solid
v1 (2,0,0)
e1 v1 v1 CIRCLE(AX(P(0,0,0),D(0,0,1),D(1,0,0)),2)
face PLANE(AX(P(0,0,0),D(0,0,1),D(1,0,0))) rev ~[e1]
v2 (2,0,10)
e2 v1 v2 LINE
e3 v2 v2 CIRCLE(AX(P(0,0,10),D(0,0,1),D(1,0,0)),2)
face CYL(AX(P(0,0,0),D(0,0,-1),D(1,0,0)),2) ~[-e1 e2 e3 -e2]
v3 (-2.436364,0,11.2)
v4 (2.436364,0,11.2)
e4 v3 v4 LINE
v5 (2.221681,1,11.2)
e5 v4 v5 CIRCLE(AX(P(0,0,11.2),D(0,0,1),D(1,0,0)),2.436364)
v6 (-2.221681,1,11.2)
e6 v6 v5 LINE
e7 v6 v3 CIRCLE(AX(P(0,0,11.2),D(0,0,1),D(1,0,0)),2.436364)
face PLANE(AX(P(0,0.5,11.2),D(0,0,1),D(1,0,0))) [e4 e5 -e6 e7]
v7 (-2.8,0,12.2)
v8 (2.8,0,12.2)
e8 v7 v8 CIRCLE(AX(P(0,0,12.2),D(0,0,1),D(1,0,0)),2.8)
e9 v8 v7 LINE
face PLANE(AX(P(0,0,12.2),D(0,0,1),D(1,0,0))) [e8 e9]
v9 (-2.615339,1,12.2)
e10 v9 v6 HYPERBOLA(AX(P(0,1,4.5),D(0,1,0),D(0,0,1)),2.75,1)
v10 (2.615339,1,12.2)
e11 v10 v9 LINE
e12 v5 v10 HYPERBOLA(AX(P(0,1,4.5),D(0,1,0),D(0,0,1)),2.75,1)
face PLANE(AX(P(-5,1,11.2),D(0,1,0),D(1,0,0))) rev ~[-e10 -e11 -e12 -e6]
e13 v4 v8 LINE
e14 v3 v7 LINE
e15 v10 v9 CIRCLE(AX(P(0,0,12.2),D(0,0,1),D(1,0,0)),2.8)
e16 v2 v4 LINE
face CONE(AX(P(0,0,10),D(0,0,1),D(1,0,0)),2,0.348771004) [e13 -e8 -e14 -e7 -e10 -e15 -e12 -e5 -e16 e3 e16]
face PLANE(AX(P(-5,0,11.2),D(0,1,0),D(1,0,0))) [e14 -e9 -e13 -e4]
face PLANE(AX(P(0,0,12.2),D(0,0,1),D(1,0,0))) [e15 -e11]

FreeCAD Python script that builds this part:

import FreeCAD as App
import Part
import Sketcher

V = App.Vector


def add_polygon(sketch, points):
    """Adds a closed chain of lines whose ends are joined by coincident constraints."""
    first, n = sketch.GeometryCount, len(points)
    for a, b in zip(points, points[1:] + points[:1]):
        sketch.addGeometry(Part.LineSegment(App.Vector(*a, 0), App.Vector(*b, 0)), False)
    for i in range(n):
        sketch.addConstraint(Sketcher.Constraint("Coincident", first + i, 2, first + (i + 1) % n, 1))

doc = App.newDocument("Part")
params = doc.addObject("Spreadsheet::Sheet", "Params")
for row, (alias, value) in enumerate([
    ("sketch1_width", "10 mm"),
    ("sketch1_height", "1 mm"),
    ("pad1_length", "2 mm"),
    ("sketch2_width", "2 mm"),
    ("sketch2_width2", "2.8 mm"),
    ("sketch2_height", "2.2 mm"),
    ("revolution_angle", "360 deg"),
    ("sketch3_diameter", "4 mm"),
    ("pad2_length", "10 mm"),
], start=1):
    params.set(f"A{row}", alias)
    params.set(f"B{row}", "=" + value)
    params.setAlias(f"B{row}", alias)

body = doc.addObject("PartDesign::Body", "Body")

sketch1 = body.newObject("Sketcher::SketchObject", "Sketch")
sketch1.AttachmentSupport = (doc.getObject("XY_Plane"), [""])
sketch1.MapMode = "FlatFace"
sketch1.AttachmentOffset = App.Placement(V(0, 0, 11.2), App.Rotation())
add_polygon(sketch1, [(-5, 1), (-5, 0), (5, 0), (5, 1)])
sketch1.addConstraint([
    Sketcher.Constraint("Vertical", 0),
    Sketcher.Constraint("Horizontal", 1),
    Sketcher.Constraint("Vertical", 2),
    Sketcher.Constraint("Horizontal", 3),
    Sketcher.Constraint("Symmetric", 0, 2, 1, 2, -1, 1),
    Sketcher.Constraint("DistanceX", 1, 1, 1, 2, 10.0),
    Sketcher.Constraint("DistanceY", 0, 2, 0, 1, 1.0),
])
sketch1.setExpression("Constraints[9]", "Params.sketch1_width")
sketch1.setExpression("Constraints[10]", "Params.sketch1_height")
pad1 = body.newObject("PartDesign::Pad", "Pad")
pad1.Profile = sketch1
pad1.setExpression("Length", "Params.pad1_length")
body2 = doc.addObject("PartDesign::Body", "Body001")

sketch2 = body2.newObject("Sketcher::SketchObject", "Sketch001")
sketch2.AttachmentSupport = (doc.getObject("XZ_Plane001"), [""])
sketch2.MapMode = "FlatFace"
add_polygon(sketch2, [(0, 10), (2, 10), (2.8, 12.2), (0, 12.2)])
sketch2.addConstraint([
    Sketcher.Constraint("Horizontal", 0),
    Sketcher.Constraint("Horizontal", 2),
    Sketcher.Constraint("Vertical", 3),
    Sketcher.Constraint("PointOnObject", 2, 2, -2),
    Sketcher.Constraint("DistanceX", 0, 1, 0, 2, 2.0),
    Sketcher.Constraint("DistanceX", 2, 2, 2, 1, 2.8),
    Sketcher.Constraint("DistanceY", 3, 2, 3, 1, 2.2),
    Sketcher.Constraint("DistanceY", -1, 1, 0, 2, 10.0),
])
sketch2.setExpression("Constraints[8]", "Params.sketch2_width")
sketch2.setExpression("Constraints[9]", "Params.sketch2_width2")
sketch2.setExpression("Constraints[10]", "Params.sketch2_height")
revolution = body2.newObject("PartDesign::Revolution", "Revolution")
revolution.Profile = sketch2
revolution.ReferenceAxis = (sketch2, ["V_Axis"])
revolution.setExpression("Angle", "Params.revolution_angle")
doc.recompute()

boolean = body2.newObject("PartDesign::Boolean", "Boolean")
boolean.Type = "Cut"
boolean.addObjects([body])
body3 = doc.addObject("PartDesign::Body", "Body002")

sketch3 = body3.newObject("Sketcher::SketchObject", "Sketch002")
sketch3.AttachmentSupport = (doc.getObject("XY_Plane002"), [""])
sketch3.MapMode = "FlatFace"
sketch3.addGeometry(Part.Circle(V(0, 0, 0), V(0, 0, 1), 2), False)
sketch3.addConstraint([
    Sketcher.Constraint("Coincident", 0, 3, -1, 1),
    Sketcher.Constraint("Diameter", 0, 4.0),
])
sketch3.setExpression("Constraints[1]", "Params.sketch3_diameter")
pad2 = body3.newObject("PartDesign::Pad", "Pad001")
pad2.Profile = sketch3
pad2.setExpression("Length", "Params.pad2_length")
doc.recompute()

boolean2 = body3.newObject("PartDesign::Boolean", "Boolean001")
boolean2.Type = "Fuse"
boolean2.addObjects([body2])

doc.recompute()
